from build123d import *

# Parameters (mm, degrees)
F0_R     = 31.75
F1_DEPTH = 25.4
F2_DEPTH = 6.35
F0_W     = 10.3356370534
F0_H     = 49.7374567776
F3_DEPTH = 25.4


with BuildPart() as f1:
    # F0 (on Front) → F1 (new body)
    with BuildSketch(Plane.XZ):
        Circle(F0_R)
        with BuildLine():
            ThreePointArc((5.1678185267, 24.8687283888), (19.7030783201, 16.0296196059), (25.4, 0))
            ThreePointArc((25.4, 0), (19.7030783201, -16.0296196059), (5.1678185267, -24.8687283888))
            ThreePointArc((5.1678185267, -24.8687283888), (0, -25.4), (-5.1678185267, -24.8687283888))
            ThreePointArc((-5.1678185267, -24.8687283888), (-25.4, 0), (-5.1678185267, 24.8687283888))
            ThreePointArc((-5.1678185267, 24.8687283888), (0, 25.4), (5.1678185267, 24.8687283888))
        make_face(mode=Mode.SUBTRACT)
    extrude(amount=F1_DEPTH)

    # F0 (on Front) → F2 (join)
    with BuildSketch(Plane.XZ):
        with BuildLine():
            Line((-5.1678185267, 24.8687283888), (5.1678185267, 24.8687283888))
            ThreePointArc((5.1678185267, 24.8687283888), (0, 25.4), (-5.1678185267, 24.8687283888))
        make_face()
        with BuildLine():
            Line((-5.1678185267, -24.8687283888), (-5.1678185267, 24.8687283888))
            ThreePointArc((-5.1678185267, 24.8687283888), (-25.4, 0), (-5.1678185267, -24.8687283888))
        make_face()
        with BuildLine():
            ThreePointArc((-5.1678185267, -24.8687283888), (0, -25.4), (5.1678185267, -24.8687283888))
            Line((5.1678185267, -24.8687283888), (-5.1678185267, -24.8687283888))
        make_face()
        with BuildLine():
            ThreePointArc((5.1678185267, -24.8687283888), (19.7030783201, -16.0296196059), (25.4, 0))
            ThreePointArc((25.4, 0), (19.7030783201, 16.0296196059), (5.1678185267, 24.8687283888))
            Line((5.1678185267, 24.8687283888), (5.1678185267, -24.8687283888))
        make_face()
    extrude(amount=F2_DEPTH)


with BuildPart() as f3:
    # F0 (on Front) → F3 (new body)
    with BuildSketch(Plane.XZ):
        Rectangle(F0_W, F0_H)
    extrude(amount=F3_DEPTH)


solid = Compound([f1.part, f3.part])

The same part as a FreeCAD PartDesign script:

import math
import FreeCAD as App
import Part
import Sketcher
from FreeCAD import Vector
Q = App.Units.Quantity

doc = App.newDocument("Part")
body = doc.addObject("PartDesign::Body", "Body")

sketch1 = body.newObject("Sketcher::SketchObject", "Sketch")
sketch1.AttachmentSupport = (doc.getObject("XZ_Plane"), [""])
sketch1.MapMode = "FlatFace"
sketch1.addGeometry(Part.Circle(Vector(0, 0, 0), Vector(0, 0, 1), 32), False)
sketch1.addGeometry(Part.ArcOfCircle(Part.Circle(Vector(0, 0, 0), Vector(0, 0, 1), 25), math.radians(78), math.radians(102)), False)
sketch1.addGeometry(Part.ArcOfCircle(Part.Circle(Vector(0, 0, 0), Vector(0, 0, 1), 25), math.radians(0), math.radians(78)), False)
sketch1.addGeometry(Part.ArcOfCircle(Part.Circle(Vector(0, 0, 0), Vector(0, 0, 1), 25), math.radians(-78), math.radians(0)), False)
sketch1.addGeometry(Part.ArcOfCircle(Part.Circle(Vector(0, 0, 0), Vector(0, 0, 1), 25), math.radians(-102), math.radians(-78)), False)
sketch1.addGeometry(Part.ArcOfCircle(Part.Circle(Vector(0, 0, 0), Vector(0, 0, 1), 25), math.radians(102), math.radians(258)), False)
sketch1.addConstraint(Sketcher.Constraint("Tangent", 1, 1, 2, 2))
sketch1.addConstraint(Sketcher.Constraint("Tangent", 2, 1, 3, 2))
sketch1.addConstraint(Sketcher.Constraint("Tangent", 3, 1, 4, 2))
sketch1.addConstraint(Sketcher.Constraint("Tangent", 4, 1, 5, 2))
sketch1.addConstraint(Sketcher.Constraint("Tangent", 5, 1, 1, 2))
sketch1.addConstraint(Sketcher.Constraint("Coincident", 0, 3, -1, 1))
sketch1.addConstraint(Sketcher.Constraint("Coincident", 1, 3, -1, 1))
sketch1.addConstraint(Sketcher.Constraint("Coincident", 3, 3, -1, 1))
sketch1.addConstraint(Sketcher.Constraint("PointOnObject", 2, 1, -1))
sketch1.addConstraint(Sketcher.Constraint("Horizontal", 3, 1, 4, 1))
sketch1.addConstraint(Sketcher.Constraint("Horizontal", 1, 1, 5, 1))
sketch1.addConstraint(Sketcher.Constraint("Vertical", 1, 1, 3, 1))
sketch1.addConstraint(Sketcher.Constraint("Radius", 1, Q("1 in")))
sketch1.addConstraint(Sketcher.Constraint("Diameter", 0, Q("2.5 in")))
sketch1.addConstraint(Sketcher.Constraint("DistanceX", -1, 1, 1, 1, 5.167819))
pad1 = body.newObject("PartDesign::Pad", "Pad")
pad1.Profile = sketch1
pad1.Length = Q("1 in")

sketch2 = body.newObject("Sketcher::SketchObject", "Sketch001")
sketch2.AttachmentSupport = (doc.getObject("XZ_Plane"), [""])
sketch2.MapMode = "FlatFace"
sketch2.addGeometry(Part.LineSegment(Vector(-5, 25, 0), Vector(5, 25, 0)), False)
sketch2.addGeometry(Part.ArcOfCircle(Part.Circle(Vector(0, 0, 0), Vector(0, 0, 1), 25), math.radians(78), math.radians(102)), False)
sketch2.addGeometry(Part.LineSegment(Vector(-5, -25, 0), Vector(-5, 25, 0)), False)
sketch2.addGeometry(Part.ArcOfCircle(Part.Circle(Vector(0, 0, 0), Vector(0, 0, 1), 25), math.radians(102), math.radians(258)), False)
sketch2.addGeometry(Part.ArcOfCircle(Part.Circle(Vector(0, 0, 0), Vector(0, 0, 1), 25), math.radians(-102), math.radians(-78)), False)
sketch2.addGeometry(Part.LineSegment(Vector(5, -25, 0), Vector(-5, -25, 0)), False)
sketch2.addGeometry(Part.ArcOfCircle(Part.Circle(Vector(0, 0, 0), Vector(0, 0, 1), 25), math.radians(-78), math.radians(0)), False)
sketch2.addGeometry(Part.ArcOfCircle(Part.Circle(Vector(0, 0, 0), Vector(0, 0, 1), 25), math.radians(0), math.radians(78)), False)
sketch2.addGeometry(Part.LineSegment(Vector(5, 25, 0), Vector(5, -25, 0)), False)
sketch2.addConstraint(Sketcher.Constraint("Coincident", 0, 1, 1, 2))
sketch2.addConstraint(Sketcher.Constraint("Coincident", 1, 1, 0, 2))
sketch2.addConstraint(Sketcher.Constraint("Coincident", 2, 1, 3, 2))
sketch2.addConstraint(Sketcher.Constraint("Coincident", 3, 1, 2, 2))
sketch2.addConstraint(Sketcher.Constraint("Coincident", 4, 1, 5, 2))
sketch2.addConstraint(Sketcher.Constraint("Coincident", 5, 1, 4, 2))
sketch2.addConstraint(Sketcher.Constraint("Tangent", 6, 2, 7, 1))
sketch2.addConstraint(Sketcher.Constraint("Coincident", 7, 2, 8, 1))
sketch2.addConstraint(Sketcher.Constraint("Coincident", 8, 2, 6, 1))
sketch2.addConstraint(Sketcher.Constraint("Horizontal", 0))
sketch2.addConstraint(Sketcher.Constraint("Vertical", 2))
sketch2.addConstraint(Sketcher.Constraint("Horizontal", 5))
sketch2.addConstraint(Sketcher.Constraint("Vertical", 8))
sketch2.addConstraint(Sketcher.Constraint("Coincident", 1, 3, -1, 1))
sketch2.addConstraint(Sketcher.Constraint("Coincident", 3, 3, -1, 1))
sketch2.addConstraint(Sketcher.Constraint("Coincident", 4, 3, -1, 1))
sketch2.addConstraint(Sketcher.Constraint("Coincident", 6, 3, -1, 1))
sketch2.addConstraint(Sketcher.Constraint("Coincident", 3, 1, 0, 1))
sketch2.addConstraint(Sketcher.Constraint("Coincident", 4, 1, 2, 1))
sketch2.addConstraint(Sketcher.Constraint("Coincident", 7, 2, 1, 1))
sketch2.addConstraint(Sketcher.Constraint("Equal", 4, 6))
sketch2.addConstraint(Sketcher.Constraint("PointOnObject", 6, 2, -1))
sketch2.addConstraint(Sketcher.Constraint("Radius", 1, Q("1 in")))
sketch2.addConstraint(Sketcher.Constraint("DistanceX", 0, 1, 0, 2, 10.335637))
pad2 = body.newObject("PartDesign::Pad", "Pad001")
pad2.Profile = sketch2
pad2.Length = Q("0.25 in")
body2 = doc.addObject("PartDesign::Body", "Body001")

sketch3 = body2.newObject("Sketcher::SketchObject", "Sketch002")
sketch3.AttachmentSupport = (doc.getObject("XZ_Plane001"), [""])
sketch3.MapMode = "FlatFace"
sketch3.addGeometry(Part.LineSegment(Vector(-5, 25, 0), Vector(-5, -25, 0)), False)
sketch3.addGeometry(Part.LineSegment(Vector(-5, -25, 0), Vector(5, -25, 0)), False)
sketch3.addGeometry(Part.LineSegment(Vector(5, -25, 0), Vector(5, 25, 0)), False)
sketch3.addGeometry(Part.LineSegment(Vector(5, 25, 0), Vector(-5, 25, 0)), False)
sketch3.addConstraint(Sketcher.Constraint("Coincident", 0, 2, 1, 1))
sketch3.addConstraint(Sketcher.Constraint("Coincident", 1, 2, 2, 1))
sketch3.addConstraint(Sketcher.Constraint("Coincident", 2, 2, 3, 1))
sketch3.addConstraint(Sketcher.Constraint("Coincident", 3, 2, 0, 1))
sketch3.addConstraint(Sketcher.Constraint("Vertical", 0))
sketch3.addConstraint(Sketcher.Constraint("Horizontal", 1))
sketch3.addConstraint(Sketcher.Constraint("Vertical", 2))
sketch3.addConstraint(Sketcher.Constraint("Horizontal", 3))
sketch3.addConstraint(Sketcher.Constraint("Symmetric", 0, 2, 2, 2, -1, 1))
sketch3.addConstraint(Sketcher.Constraint("DistanceX", 1, 1, 1, 2, 10.335637))
sketch3.addConstraint(Sketcher.Constraint("DistanceY", 0, 2, 0, 1, 49.737457))
pad3 = body2.newObject("PartDesign::Pad", "Pad002")
pad3.Profile = sketch3
pad3.Length = Q("1 in")

doc.recompute()
